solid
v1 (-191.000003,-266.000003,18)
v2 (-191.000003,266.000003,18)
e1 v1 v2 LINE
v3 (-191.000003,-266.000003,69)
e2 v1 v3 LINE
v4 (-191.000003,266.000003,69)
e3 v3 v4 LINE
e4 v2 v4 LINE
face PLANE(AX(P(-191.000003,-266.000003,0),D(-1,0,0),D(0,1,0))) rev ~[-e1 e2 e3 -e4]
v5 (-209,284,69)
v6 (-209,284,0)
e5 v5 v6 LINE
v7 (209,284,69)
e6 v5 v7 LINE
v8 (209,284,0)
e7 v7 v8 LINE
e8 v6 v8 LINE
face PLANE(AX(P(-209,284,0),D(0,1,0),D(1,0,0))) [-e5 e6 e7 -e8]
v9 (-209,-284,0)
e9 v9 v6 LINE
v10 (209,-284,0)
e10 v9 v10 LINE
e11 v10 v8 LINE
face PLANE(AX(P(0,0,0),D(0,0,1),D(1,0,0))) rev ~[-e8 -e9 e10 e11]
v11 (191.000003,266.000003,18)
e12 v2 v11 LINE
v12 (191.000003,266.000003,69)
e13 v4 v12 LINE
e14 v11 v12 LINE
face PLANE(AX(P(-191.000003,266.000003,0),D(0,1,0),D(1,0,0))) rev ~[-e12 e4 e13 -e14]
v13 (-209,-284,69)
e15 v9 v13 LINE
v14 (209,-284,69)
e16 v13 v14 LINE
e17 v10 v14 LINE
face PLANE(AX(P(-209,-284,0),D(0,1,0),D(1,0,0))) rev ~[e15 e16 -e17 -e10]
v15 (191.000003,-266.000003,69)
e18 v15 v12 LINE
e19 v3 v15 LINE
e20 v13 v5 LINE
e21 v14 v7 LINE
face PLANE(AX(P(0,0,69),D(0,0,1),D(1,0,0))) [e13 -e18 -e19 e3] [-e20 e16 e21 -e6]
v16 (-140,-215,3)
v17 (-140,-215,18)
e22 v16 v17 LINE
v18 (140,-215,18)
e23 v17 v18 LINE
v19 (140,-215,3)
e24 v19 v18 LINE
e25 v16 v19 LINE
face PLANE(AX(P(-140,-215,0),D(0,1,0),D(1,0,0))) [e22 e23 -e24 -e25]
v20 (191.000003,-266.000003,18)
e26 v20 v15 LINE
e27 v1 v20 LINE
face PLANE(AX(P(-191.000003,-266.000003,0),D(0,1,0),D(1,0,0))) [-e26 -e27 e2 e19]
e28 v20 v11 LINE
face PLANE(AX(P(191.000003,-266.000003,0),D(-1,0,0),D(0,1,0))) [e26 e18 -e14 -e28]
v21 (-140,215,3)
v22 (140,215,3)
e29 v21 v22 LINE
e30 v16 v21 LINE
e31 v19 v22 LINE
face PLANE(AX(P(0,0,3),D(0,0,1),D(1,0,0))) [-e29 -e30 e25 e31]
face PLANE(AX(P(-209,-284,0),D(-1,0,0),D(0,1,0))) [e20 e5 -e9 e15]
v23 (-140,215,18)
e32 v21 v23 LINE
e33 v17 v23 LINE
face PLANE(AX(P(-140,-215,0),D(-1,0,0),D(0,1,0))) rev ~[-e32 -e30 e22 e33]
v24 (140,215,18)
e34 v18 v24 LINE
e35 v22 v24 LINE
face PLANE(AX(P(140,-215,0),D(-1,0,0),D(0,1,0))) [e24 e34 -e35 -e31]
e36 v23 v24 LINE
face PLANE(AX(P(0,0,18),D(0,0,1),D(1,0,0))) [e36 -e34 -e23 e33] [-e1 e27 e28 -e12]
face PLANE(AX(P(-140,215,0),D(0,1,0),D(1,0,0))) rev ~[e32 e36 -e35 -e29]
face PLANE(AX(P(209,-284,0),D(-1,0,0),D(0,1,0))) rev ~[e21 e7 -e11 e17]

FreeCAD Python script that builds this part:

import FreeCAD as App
import Part
import Sketcher

V = App.Vector
Q = App.Units.Quantity

doc = App.newDocument("Part")
body = doc.addObject("PartDesign::Body", "Body")

sketch1 = doc.addObject("Sketcher::SketchObject", "Sketch")
body.addObject(sketch1)
sketch1.AttachmentSupport = (doc.XY_Plane, [""])
sketch1.MapMode = "FlatFace"
sketch1.addGeometry([
    Part.LineSegment(V(-209, 284, 0), V(-209, -284, 0)),
    Part.LineSegment(V(-209, -284, 0), V(209, -284, 0)),
    Part.LineSegment(V(209, -284, 0), V(209, 284, 0)),
    Part.LineSegment(V(209, 284, 0), V(-209, 284, 0)),
    Part.LineSegment(V(191, -266, 0), V(-191, -266, 0)),
    Part.LineSegment(V(-191, -266, 0), V(-191, 266, 0)),
    Part.LineSegment(V(-191, 266, 0), V(191, 266, 0)),
    Part.LineSegment(V(191, 266, 0), V(191, -266, 0)),
], False)
sketch1.addConstraint([
    Sketcher.Constraint("Coincident", 0, 2, 1, 1),
    Sketcher.Constraint("Coincident", 1, 2, 2, 1),
    Sketcher.Constraint("Coincident", 2, 2, 3, 1),
    Sketcher.Constraint("Coincident", 3, 2, 0, 1),
    Sketcher.Constraint("Coincident", 4, 2, 5, 1),
    Sketcher.Constraint("Coincident", 5, 2, 6, 1),
    Sketcher.Constraint("Coincident", 6, 2, 7, 1),
    Sketcher.Constraint("Coincident", 7, 2, 4, 1),
    Sketcher.Constraint("Vertical", 0),
    Sketcher.Constraint("Horizontal", 1),
    Sketcher.Constraint("Vertical", 2),
    Sketcher.Constraint("Horizontal", 3),
    Sketcher.Constraint("Horizontal", 4),
    Sketcher.Constraint("Vertical", 5),
    Sketcher.Constraint("Horizontal", 6),
    Sketcher.Constraint("Vertical", 7),
    Sketcher.Constraint("Symmetric", 0, 2, 2, 2, -1, 1),
    Sketcher.Constraint("Symmetric", 4, 2, 6, 2, -1, 1),
    Sketcher.Constraint("DistanceX", 1, 1, 1, 2, Q("418 mm")),
    Sketcher.Constraint("DistanceY", 0, 2, 0, 1, Q("568 mm")),
    Sketcher.Constraint("DistanceX", 4, 2, 4, 1, Q("382.000006 mm")),
    Sketcher.Constraint("DistanceY", 5, 1, 5, 2, Q("532.000006 mm")),
])
pad1 = doc.addObject("PartDesign::Pad", "Pad")
body.addObject(pad1)
pad1.Profile = sketch1
pad1.Length = 69

sketch2 = doc.addObject("Sketcher::SketchObject", "Sketch001")
body.addObject(sketch2)
sketch2.AttachmentSupport = (doc.XY_Plane, [""])
sketch2.MapMode = "FlatFace"
sketch2.addGeometry([
    Part.LineSegment(V(-209, 284, 0), V(-209, -284, 0)),
    Part.LineSegment(V(-209, -284, 0), V(209, -284, 0)),
    Part.LineSegment(V(209, -284, 0), V(209, 284, 0)),
    Part.LineSegment(V(209, 284, 0), V(-209, 284, 0)),
    Part.LineSegment(V(140, -215, 0), V(-140, -215, 0)),
    Part.LineSegment(V(-140, -215, 0), V(-140, 215, 0)),
    Part.LineSegment(V(-140, 215, 0), V(140, 215, 0)),
    Part.LineSegment(V(140, 215, 0), V(140, -215, 0)),
], False)
sketch2.addConstraint([
    Sketcher.Constraint("Coincident", 0, 2, 1, 1),
    Sketcher.Constraint("Coincident", 1, 2, 2, 1),
    Sketcher.Constraint("Coincident", 2, 2, 3, 1),
    Sketcher.Constraint("Coincident", 3, 2, 0, 1),
    Sketcher.Constraint("Coincident", 4, 2, 5, 1),
    Sketcher.Constraint("Coincident", 5, 2, 6, 1),
    Sketcher.Constraint("Coincident", 6, 2, 7, 1),
    Sketcher.Constraint("Coincident", 7, 2, 4, 1),
    Sketcher.Constraint("Vertical", 0),
    Sketcher.Constraint("Horizontal", 1),
    Sketcher.Constraint("Vertical", 2),
    Sketcher.Constraint("Horizontal", 3),
    Sketcher.Constraint("Horizontal", 4),
    Sketcher.Constraint("Vertical", 5),
    Sketcher.Constraint("Horizontal", 6),
    Sketcher.Constraint("Vertical", 7),
    Sketcher.Constraint("Symmetric", 0, 2, 2, 2, -1, 1),
    Sketcher.Constraint("Symmetric", 4, 2, 6, 2, -1, 1),
    Sketcher.Constraint("DistanceX", 1, 1, 1, 2, Q("418 mm")),
    Sketcher.Constraint("DistanceX", 4, 2, 4, 1, Q("280 mm")),
    Sketcher.Constraint("DistanceY", 0, 2, 0, 1, Q("568 mm")),
    Sketcher.Constraint("DistanceY", 5, 1, 5, 2, Q("430 mm")),
])
pad2 = doc.addObject("PartDesign::Pad", "Pad001")
body.addObject(pad2)
pad2.Profile = sketch2
pad2.Length = 18

sketch3 = doc.addObject("Sketcher::SketchObject", "Sketch002")
body.addObject(sketch3)
sketch3.AttachmentSupport = (doc.XY_Plane, [""])
sketch3.MapMode = "FlatFace"
sketch3.addGeometry([
    Part.LineSegment(V(-191, 266, 0), V(-191, -266, 0)),
    Part.LineSegment(V(-191, -266, 0), V(191, -266, 0)),
    Part.LineSegment(V(191, -266, 0), V(191, 266, 0)),
    Part.LineSegment(V(191, 266, 0), V(-191, 266, 0)),
], False)
sketch3.addConstraint([
    Sketcher.Constraint("Coincident", 0, 2, 1, 1),
    Sketcher.Constraint("Coincident", 1, 2, 2, 1),
    Sketcher.Constraint("Coincident", 2, 2, 3, 1),
    Sketcher.Constraint("Coincident", 3, 2, 0, 1),
    Sketcher.Constraint("Vertical", 0),
    Sketcher.Constraint("Horizontal", 1),
    Sketcher.Constraint("Vertical", 2),
    Sketcher.Constraint("Horizontal", 3),
    Sketcher.Constraint("Symmetric", 0, 2, 2, 2, -1, 1),
    Sketcher.Constraint("DistanceX", 1, 1, 1, 2, Q("382.000006 mm")),
    Sketcher.Constraint("DistanceY", 0, 2, 0, 1, Q("532.000006 mm")),
])
pad3 = doc.addObject("PartDesign::Pad", "Pad002")
body.addObject(pad3)
pad3.Profile = sketch3
pad3.Length = 3

doc.recompute()
